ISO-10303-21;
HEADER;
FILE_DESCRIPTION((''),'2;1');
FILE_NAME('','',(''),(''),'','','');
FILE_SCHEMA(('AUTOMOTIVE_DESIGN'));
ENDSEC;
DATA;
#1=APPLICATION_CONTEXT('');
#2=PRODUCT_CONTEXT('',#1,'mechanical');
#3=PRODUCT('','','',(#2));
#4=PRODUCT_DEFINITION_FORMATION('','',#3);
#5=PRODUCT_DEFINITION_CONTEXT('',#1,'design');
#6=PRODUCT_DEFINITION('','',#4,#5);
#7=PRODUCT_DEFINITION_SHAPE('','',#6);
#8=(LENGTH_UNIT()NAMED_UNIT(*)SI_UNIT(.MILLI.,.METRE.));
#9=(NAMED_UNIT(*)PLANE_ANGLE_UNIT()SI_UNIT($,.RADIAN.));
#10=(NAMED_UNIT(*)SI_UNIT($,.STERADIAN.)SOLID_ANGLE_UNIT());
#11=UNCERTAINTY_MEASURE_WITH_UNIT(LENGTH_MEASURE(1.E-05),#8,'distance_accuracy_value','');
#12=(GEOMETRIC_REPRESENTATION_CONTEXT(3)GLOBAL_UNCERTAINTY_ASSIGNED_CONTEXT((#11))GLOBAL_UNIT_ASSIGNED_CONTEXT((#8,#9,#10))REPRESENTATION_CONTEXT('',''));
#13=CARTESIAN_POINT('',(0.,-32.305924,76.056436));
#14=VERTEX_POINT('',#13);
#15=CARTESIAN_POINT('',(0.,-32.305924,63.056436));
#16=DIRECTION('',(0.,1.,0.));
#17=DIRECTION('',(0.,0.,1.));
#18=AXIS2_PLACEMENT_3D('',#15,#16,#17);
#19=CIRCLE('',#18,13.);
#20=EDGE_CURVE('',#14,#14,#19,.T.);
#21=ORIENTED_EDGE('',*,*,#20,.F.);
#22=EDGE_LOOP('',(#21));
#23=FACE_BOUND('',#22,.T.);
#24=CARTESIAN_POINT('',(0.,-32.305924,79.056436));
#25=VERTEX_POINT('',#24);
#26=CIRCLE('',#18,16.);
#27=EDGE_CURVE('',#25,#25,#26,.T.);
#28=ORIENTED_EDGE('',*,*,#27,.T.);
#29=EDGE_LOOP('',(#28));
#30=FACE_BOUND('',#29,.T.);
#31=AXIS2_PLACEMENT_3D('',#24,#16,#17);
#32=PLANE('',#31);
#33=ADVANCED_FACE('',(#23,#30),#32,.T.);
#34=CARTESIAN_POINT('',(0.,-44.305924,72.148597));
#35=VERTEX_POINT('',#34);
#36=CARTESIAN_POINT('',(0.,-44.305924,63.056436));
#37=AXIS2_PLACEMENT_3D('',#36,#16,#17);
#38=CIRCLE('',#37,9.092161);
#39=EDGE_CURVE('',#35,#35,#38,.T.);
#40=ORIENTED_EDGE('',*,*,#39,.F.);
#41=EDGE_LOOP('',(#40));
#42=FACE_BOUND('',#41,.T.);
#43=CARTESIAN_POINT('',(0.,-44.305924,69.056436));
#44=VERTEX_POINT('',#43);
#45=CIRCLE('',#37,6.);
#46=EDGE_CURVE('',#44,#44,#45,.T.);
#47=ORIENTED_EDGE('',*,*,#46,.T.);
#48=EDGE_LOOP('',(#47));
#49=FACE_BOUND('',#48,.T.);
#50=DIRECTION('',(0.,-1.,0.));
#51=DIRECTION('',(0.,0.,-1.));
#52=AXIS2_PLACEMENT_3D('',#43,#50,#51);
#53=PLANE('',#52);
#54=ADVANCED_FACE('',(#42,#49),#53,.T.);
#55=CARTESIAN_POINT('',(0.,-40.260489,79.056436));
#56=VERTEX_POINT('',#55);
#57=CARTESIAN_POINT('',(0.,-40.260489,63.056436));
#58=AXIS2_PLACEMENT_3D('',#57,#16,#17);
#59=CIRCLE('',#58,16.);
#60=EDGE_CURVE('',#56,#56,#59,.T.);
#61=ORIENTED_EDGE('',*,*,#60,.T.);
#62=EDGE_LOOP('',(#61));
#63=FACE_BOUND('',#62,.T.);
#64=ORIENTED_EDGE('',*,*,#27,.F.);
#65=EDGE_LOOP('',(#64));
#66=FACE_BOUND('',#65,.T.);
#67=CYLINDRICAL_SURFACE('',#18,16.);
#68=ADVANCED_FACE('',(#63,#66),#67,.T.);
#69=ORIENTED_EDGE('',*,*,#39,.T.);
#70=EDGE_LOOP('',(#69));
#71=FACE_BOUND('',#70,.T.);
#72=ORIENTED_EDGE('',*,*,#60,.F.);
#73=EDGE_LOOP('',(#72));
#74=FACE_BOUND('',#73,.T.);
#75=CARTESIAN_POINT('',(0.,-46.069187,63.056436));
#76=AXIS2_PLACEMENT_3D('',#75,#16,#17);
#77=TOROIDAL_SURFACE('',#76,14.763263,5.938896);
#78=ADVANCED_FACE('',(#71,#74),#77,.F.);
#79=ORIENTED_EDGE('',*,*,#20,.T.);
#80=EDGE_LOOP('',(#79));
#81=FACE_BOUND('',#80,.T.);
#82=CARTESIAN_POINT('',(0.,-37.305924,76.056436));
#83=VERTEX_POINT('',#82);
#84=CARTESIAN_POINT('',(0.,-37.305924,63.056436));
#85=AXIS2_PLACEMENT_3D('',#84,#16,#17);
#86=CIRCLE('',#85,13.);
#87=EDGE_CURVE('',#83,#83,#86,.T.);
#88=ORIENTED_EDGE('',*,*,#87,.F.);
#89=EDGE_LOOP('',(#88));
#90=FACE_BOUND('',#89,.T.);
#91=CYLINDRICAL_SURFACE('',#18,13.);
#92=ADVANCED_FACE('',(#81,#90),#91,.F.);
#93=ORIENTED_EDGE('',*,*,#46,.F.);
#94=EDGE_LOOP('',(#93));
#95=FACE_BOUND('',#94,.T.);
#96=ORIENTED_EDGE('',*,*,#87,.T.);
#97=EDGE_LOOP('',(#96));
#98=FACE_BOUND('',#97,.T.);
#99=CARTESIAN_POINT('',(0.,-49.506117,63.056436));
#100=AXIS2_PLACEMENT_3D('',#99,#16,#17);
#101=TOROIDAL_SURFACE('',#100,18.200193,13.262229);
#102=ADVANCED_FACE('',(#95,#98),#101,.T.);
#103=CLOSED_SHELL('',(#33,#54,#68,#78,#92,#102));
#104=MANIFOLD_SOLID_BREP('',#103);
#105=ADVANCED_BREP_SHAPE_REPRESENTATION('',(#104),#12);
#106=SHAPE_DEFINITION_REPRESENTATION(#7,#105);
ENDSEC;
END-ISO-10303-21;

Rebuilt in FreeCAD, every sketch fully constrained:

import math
import FreeCAD as App
import Part
import Sketcher

V = App.Vector
Q = App.Units.Quantity

doc = App.newDocument("Part")
body = doc.addObject("PartDesign::Body", "Body")

sketch1 = body.newObject("Sketcher::SketchObject", "Sketch")
sketch1.AttachmentSupport = (doc.getObject("YZ_Plane"), [""])
sketch1.MapMode = "FlatFace"
sketch1.addGeometry([
    Part.LineSegment(V(-32.3, 79.1, 0), V(-40.3, 79.1, 0)),
    Part.ArcOfCircle(Part.Circle(V(-46.1, 77.8, 0), V(0, 0, 1), 5.9), math.radians(-73), math.radians(12)),
    Part.LineSegment(V(-44.3, 72.1, 0), V(-44.3, 69.1, 0)),
    Part.ArcOfCircle(Part.Circle(V(-49.5, 81.3, 0), V(0, 0, 1), 13.3), math.radians(-67), math.radians(-23)),
    Part.LineSegment(V(-37.3, 76.1, 0), V(-32.3, 76.1, 0)),
    Part.LineSegment(V(-32.3, 76.1, 0), V(-32.3, 79.1, 0)),
], False)
sketch1.addGeometry(Part.LineSegment(V(-32.3, 63.1, 0), V(-49.5, 63.1, 0)), True)
sketch1.addConstraint([
    Sketcher.Constraint("Coincident", 0, 2, 1, 2),
    Sketcher.Constraint("Coincident", 1, 1, 2, 1),
    Sketcher.Constraint("Coincident", 2, 2, 3, 1),
    Sketcher.Constraint("Coincident", 3, 2, 4, 1),
    Sketcher.Constraint("Coincident", 4, 2, 5, 1),
    Sketcher.Constraint("Coincident", 5, 2, 0, 1),
    Sketcher.Constraint("Horizontal", 0),
    Sketcher.Constraint("Vertical", 2),
    Sketcher.Constraint("Horizontal", 4),
    Sketcher.Constraint("Vertical", 5),
    Sketcher.Constraint("Horizontal", 6),
    Sketcher.Constraint("Vertical", 5, 2, 6, 1),
    Sketcher.Constraint("Vertical", 3, 3, 6, 2),
    Sketcher.Constraint("DistanceX", 4, 1, 4, 2, Q("5 mm")),
    Sketcher.Constraint("DistanceY", 5, 1, 5, 2, Q("3 mm")),
    Sketcher.Constraint("DistanceY", 2, 2, 0, 2, Q("10 mm")),
    Sketcher.Constraint("DistanceX", 1, 1, 3, 2, Q("7 mm")),
    Sketcher.Constraint("DistanceY", 6, 1, 4, 2, Q("13 mm")),
    Sketcher.Constraint("Radius", 3, Q("13.262229 mm")),
    Sketcher.Constraint("Radius", 1, Q("5.938896 mm")),
    Sketcher.Constraint("DistanceY", 2, 2, 2, 1, Q("3.092161 mm")),
    Sketcher.Constraint("DistanceY", -1, 1, 1, 3, Q("77.819699 mm")),
    Sketcher.Constraint("DistanceY", 1, 1, 1, 3, Q("5.671102 mm")),
    Sketcher.Constraint("DistanceX", 0, 2, -1, 1, Q("40.260489 mm")),
])
revolution = body.newObject("PartDesign::Revolution", "Revolution")
revolution.Profile = sketch1
revolution.ReferenceAxis = (sketch1, ["Axis0"])
revolution.Angle = 360

doc.recompute()
